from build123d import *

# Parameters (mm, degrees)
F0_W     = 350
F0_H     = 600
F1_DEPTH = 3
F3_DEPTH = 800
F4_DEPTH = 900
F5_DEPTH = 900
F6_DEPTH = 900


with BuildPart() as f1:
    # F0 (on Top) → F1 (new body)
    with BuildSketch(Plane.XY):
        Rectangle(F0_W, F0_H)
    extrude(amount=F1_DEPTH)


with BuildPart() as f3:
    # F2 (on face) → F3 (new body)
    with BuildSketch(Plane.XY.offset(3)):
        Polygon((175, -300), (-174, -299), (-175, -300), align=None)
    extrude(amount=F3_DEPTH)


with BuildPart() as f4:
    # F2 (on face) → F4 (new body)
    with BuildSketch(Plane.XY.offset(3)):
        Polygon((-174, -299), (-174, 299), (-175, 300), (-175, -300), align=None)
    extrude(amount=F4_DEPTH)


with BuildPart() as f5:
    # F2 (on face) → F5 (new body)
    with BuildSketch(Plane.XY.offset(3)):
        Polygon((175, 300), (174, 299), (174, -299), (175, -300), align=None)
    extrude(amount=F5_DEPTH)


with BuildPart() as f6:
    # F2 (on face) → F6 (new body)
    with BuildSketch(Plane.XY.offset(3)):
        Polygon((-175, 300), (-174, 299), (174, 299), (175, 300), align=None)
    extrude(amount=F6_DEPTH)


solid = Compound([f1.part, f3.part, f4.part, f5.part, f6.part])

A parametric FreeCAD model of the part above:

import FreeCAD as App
import Part
import Sketcher
from FreeCAD import Vector
Q = App.Units.Quantity


def add_polygon(sketch, points):
    """Adds a closed chain of lines whose ends are joined by coincident constraints."""
    first, n = sketch.GeometryCount, len(points)
    for a, b in zip(points, points[1:] + points[:1]):
        sketch.addGeometry(Part.LineSegment(App.Vector(*a, 0), App.Vector(*b, 0)), False)
    for i in range(n):
        sketch.addConstraint(Sketcher.Constraint("Coincident", first + i, 2, first + (i + 1) % n, 1))

doc = App.newDocument("Part")
body = doc.addObject("PartDesign::Body", "Body")

sketch1 = body.newObject("Sketcher::SketchObject", "Sketch")
sketch1.AttachmentSupport = (doc.getObject("XY_Plane"), [""])
sketch1.MapMode = "FlatFace"
add_polygon(sketch1, [(-175, 300), (-175, -300), (175, -300), (175, 300)])
sketch1.addConstraint([
    Sketcher.Constraint("Vertical", 0),
    Sketcher.Constraint("Horizontal", 1),
    Sketcher.Constraint("Vertical", 2),
    Sketcher.Constraint("Horizontal", 3),
    Sketcher.Constraint("Symmetric", 0, 2, 2, 2, -1, 1),
    Sketcher.Constraint("DistanceX", 1, 1, 1, 2, 350.0),
    Sketcher.Constraint("DistanceY", 0, 2, 0, 1, 600.0),
])
pad1 = body.newObject("PartDesign::Pad", "Pad")
pad1.Profile = sketch1
pad1.Length = 3
body2 = doc.addObject("PartDesign::Body", "Body001")

sketch2 = body2.newObject("Sketcher::SketchObject", "Sketch001")
sketch2.AttachmentSupport = (doc.getObject("XY_Plane001"), [""])
sketch2.MapMode = "FlatFace"
sketch2.AttachmentOffset = App.Placement(Vector(0, 0, 3), App.Rotation())
add_polygon(sketch2, [(175, -300), (-174, -299), (-175, -300)])
sketch2.addConstraint([
    Sketcher.Constraint("Horizontal", 2),
    Sketcher.Constraint("DistanceX", 2, 1, 2, 2, 350.0),
    Sketcher.Constraint("Angle", 1, Q("-135 deg")),
    Sketcher.Constraint("DistanceX", 0, 2, -1, 1, 174.0),
    Sketcher.Constraint("DistanceY", 0, 2, -1, 1, 299.0),
    Sketcher.Constraint("DistanceX", 1, 2, -1, 1, 175.0),
])
pad2 = body2.newObject("PartDesign::Pad", "Pad001")
pad2.Profile = sketch2
pad2.Length = 800
body3 = doc.addObject("PartDesign::Body", "Body002")

sketch3 = body3.newObject("Sketcher::SketchObject", "Sketch002")
sketch3.AttachmentSupport = (doc.getObject("XY_Plane002"), [""])
sketch3.MapMode = "FlatFace"
sketch3.AttachmentOffset = App.Placement(Vector(0, 0, 3), App.Rotation())
add_polygon(sketch3, [(-174, -299), (-174, 299), (-175, 300), (-175, -300)])
sketch3.addConstraint([
    Sketcher.Constraint("Vertical", 0),
    Sketcher.Constraint("Vertical", 2),
    Sketcher.Constraint("Perpendicular", 1, 3),
    Sketcher.Constraint("Equal", 1, 3),
    Sketcher.Constraint("DistanceY", 0, 1, 0, 2, 598.0),
    Sketcher.Constraint("DistanceY", 2, 2, 2, 1, 600.0),
    Sketcher.Constraint("DistanceX", 0, 2, -1, 1, 174.0),
    Sketcher.Constraint("DistanceY", -1, 1, 0, 2, 299.0),
])
pad3 = body3.newObject("PartDesign::Pad", "Pad002")
pad3.Profile = sketch3
pad3.Length = 900
body4 = doc.addObject("PartDesign::Body", "Body003")

sketch4 = body4.newObject("Sketcher::SketchObject", "Sketch003")
sketch4.AttachmentSupport = (doc.getObject("XY_Plane003"), [""])
sketch4.MapMode = "FlatFace"
sketch4.AttachmentOffset = App.Placement(Vector(0, 0, 3), App.Rotation())
add_polygon(sketch4, [(175, 300), (174, 299), (174, -299), (175, -300)])
sketch4.addConstraint([
    Sketcher.Constraint("Vertical", 1),
    Sketcher.Constraint("Vertical", 3),
    Sketcher.Constraint("Perpendicular", 0, 2),
    Sketcher.Constraint("Equal", 0, 2),
    Sketcher.Constraint("DistanceY", 1, 2, 1, 1, 598.0),
    Sketcher.Constraint("DistanceY", 3, 1, 3, 2, 600.0),
    Sketcher.Constraint("DistanceX", -1, 1, 0, 2, 174.0),
    Sketcher.Constraint("DistanceY", -1, 1, 0, 2, 299.0),
])
pad4 = body4.newObject("PartDesign::Pad", "Pad003")
pad4.Profile = sketch4
pad4.Length = 900
body5 = doc.addObject("PartDesign::Body", "Body004")

sketch5 = body5.newObject("Sketcher::SketchObject", "Sketch004")
sketch5.AttachmentSupport = (doc.getObject("XY_Plane004"), [""])
sketch5.MapMode = "FlatFace"
sketch5.AttachmentOffset = App.Placement(Vector(0, 0, 3), App.Rotation())
add_polygon(sketch5, [(-175, 300), (-174, 299), (174, 299), (175, 300)])
sketch5.addConstraint([
    Sketcher.Constraint("Horizontal", 1),
    Sketcher.Constraint("Horizontal", 3),
    Sketcher.Constraint("Perpendicular", 0, 2),
    Sketcher.Constraint("Equal", 0, 2),
    Sketcher.Constraint("DistanceX", 1, 1, 1, 2, 348.0),
    Sketcher.Constraint("DistanceX", 3, 2, 3, 1, 350.0),
    Sketcher.Constraint("DistanceX", 0, 2, -1, 1, 174.0),
    Sketcher.Constraint("DistanceY", -1, 1, 0, 2, 299.0),
])
pad5 = body5.newObject("PartDesign::Pad", "Pad004")
pad5.Profile = sketch5
pad5.Length = 900

doc.recompute()
